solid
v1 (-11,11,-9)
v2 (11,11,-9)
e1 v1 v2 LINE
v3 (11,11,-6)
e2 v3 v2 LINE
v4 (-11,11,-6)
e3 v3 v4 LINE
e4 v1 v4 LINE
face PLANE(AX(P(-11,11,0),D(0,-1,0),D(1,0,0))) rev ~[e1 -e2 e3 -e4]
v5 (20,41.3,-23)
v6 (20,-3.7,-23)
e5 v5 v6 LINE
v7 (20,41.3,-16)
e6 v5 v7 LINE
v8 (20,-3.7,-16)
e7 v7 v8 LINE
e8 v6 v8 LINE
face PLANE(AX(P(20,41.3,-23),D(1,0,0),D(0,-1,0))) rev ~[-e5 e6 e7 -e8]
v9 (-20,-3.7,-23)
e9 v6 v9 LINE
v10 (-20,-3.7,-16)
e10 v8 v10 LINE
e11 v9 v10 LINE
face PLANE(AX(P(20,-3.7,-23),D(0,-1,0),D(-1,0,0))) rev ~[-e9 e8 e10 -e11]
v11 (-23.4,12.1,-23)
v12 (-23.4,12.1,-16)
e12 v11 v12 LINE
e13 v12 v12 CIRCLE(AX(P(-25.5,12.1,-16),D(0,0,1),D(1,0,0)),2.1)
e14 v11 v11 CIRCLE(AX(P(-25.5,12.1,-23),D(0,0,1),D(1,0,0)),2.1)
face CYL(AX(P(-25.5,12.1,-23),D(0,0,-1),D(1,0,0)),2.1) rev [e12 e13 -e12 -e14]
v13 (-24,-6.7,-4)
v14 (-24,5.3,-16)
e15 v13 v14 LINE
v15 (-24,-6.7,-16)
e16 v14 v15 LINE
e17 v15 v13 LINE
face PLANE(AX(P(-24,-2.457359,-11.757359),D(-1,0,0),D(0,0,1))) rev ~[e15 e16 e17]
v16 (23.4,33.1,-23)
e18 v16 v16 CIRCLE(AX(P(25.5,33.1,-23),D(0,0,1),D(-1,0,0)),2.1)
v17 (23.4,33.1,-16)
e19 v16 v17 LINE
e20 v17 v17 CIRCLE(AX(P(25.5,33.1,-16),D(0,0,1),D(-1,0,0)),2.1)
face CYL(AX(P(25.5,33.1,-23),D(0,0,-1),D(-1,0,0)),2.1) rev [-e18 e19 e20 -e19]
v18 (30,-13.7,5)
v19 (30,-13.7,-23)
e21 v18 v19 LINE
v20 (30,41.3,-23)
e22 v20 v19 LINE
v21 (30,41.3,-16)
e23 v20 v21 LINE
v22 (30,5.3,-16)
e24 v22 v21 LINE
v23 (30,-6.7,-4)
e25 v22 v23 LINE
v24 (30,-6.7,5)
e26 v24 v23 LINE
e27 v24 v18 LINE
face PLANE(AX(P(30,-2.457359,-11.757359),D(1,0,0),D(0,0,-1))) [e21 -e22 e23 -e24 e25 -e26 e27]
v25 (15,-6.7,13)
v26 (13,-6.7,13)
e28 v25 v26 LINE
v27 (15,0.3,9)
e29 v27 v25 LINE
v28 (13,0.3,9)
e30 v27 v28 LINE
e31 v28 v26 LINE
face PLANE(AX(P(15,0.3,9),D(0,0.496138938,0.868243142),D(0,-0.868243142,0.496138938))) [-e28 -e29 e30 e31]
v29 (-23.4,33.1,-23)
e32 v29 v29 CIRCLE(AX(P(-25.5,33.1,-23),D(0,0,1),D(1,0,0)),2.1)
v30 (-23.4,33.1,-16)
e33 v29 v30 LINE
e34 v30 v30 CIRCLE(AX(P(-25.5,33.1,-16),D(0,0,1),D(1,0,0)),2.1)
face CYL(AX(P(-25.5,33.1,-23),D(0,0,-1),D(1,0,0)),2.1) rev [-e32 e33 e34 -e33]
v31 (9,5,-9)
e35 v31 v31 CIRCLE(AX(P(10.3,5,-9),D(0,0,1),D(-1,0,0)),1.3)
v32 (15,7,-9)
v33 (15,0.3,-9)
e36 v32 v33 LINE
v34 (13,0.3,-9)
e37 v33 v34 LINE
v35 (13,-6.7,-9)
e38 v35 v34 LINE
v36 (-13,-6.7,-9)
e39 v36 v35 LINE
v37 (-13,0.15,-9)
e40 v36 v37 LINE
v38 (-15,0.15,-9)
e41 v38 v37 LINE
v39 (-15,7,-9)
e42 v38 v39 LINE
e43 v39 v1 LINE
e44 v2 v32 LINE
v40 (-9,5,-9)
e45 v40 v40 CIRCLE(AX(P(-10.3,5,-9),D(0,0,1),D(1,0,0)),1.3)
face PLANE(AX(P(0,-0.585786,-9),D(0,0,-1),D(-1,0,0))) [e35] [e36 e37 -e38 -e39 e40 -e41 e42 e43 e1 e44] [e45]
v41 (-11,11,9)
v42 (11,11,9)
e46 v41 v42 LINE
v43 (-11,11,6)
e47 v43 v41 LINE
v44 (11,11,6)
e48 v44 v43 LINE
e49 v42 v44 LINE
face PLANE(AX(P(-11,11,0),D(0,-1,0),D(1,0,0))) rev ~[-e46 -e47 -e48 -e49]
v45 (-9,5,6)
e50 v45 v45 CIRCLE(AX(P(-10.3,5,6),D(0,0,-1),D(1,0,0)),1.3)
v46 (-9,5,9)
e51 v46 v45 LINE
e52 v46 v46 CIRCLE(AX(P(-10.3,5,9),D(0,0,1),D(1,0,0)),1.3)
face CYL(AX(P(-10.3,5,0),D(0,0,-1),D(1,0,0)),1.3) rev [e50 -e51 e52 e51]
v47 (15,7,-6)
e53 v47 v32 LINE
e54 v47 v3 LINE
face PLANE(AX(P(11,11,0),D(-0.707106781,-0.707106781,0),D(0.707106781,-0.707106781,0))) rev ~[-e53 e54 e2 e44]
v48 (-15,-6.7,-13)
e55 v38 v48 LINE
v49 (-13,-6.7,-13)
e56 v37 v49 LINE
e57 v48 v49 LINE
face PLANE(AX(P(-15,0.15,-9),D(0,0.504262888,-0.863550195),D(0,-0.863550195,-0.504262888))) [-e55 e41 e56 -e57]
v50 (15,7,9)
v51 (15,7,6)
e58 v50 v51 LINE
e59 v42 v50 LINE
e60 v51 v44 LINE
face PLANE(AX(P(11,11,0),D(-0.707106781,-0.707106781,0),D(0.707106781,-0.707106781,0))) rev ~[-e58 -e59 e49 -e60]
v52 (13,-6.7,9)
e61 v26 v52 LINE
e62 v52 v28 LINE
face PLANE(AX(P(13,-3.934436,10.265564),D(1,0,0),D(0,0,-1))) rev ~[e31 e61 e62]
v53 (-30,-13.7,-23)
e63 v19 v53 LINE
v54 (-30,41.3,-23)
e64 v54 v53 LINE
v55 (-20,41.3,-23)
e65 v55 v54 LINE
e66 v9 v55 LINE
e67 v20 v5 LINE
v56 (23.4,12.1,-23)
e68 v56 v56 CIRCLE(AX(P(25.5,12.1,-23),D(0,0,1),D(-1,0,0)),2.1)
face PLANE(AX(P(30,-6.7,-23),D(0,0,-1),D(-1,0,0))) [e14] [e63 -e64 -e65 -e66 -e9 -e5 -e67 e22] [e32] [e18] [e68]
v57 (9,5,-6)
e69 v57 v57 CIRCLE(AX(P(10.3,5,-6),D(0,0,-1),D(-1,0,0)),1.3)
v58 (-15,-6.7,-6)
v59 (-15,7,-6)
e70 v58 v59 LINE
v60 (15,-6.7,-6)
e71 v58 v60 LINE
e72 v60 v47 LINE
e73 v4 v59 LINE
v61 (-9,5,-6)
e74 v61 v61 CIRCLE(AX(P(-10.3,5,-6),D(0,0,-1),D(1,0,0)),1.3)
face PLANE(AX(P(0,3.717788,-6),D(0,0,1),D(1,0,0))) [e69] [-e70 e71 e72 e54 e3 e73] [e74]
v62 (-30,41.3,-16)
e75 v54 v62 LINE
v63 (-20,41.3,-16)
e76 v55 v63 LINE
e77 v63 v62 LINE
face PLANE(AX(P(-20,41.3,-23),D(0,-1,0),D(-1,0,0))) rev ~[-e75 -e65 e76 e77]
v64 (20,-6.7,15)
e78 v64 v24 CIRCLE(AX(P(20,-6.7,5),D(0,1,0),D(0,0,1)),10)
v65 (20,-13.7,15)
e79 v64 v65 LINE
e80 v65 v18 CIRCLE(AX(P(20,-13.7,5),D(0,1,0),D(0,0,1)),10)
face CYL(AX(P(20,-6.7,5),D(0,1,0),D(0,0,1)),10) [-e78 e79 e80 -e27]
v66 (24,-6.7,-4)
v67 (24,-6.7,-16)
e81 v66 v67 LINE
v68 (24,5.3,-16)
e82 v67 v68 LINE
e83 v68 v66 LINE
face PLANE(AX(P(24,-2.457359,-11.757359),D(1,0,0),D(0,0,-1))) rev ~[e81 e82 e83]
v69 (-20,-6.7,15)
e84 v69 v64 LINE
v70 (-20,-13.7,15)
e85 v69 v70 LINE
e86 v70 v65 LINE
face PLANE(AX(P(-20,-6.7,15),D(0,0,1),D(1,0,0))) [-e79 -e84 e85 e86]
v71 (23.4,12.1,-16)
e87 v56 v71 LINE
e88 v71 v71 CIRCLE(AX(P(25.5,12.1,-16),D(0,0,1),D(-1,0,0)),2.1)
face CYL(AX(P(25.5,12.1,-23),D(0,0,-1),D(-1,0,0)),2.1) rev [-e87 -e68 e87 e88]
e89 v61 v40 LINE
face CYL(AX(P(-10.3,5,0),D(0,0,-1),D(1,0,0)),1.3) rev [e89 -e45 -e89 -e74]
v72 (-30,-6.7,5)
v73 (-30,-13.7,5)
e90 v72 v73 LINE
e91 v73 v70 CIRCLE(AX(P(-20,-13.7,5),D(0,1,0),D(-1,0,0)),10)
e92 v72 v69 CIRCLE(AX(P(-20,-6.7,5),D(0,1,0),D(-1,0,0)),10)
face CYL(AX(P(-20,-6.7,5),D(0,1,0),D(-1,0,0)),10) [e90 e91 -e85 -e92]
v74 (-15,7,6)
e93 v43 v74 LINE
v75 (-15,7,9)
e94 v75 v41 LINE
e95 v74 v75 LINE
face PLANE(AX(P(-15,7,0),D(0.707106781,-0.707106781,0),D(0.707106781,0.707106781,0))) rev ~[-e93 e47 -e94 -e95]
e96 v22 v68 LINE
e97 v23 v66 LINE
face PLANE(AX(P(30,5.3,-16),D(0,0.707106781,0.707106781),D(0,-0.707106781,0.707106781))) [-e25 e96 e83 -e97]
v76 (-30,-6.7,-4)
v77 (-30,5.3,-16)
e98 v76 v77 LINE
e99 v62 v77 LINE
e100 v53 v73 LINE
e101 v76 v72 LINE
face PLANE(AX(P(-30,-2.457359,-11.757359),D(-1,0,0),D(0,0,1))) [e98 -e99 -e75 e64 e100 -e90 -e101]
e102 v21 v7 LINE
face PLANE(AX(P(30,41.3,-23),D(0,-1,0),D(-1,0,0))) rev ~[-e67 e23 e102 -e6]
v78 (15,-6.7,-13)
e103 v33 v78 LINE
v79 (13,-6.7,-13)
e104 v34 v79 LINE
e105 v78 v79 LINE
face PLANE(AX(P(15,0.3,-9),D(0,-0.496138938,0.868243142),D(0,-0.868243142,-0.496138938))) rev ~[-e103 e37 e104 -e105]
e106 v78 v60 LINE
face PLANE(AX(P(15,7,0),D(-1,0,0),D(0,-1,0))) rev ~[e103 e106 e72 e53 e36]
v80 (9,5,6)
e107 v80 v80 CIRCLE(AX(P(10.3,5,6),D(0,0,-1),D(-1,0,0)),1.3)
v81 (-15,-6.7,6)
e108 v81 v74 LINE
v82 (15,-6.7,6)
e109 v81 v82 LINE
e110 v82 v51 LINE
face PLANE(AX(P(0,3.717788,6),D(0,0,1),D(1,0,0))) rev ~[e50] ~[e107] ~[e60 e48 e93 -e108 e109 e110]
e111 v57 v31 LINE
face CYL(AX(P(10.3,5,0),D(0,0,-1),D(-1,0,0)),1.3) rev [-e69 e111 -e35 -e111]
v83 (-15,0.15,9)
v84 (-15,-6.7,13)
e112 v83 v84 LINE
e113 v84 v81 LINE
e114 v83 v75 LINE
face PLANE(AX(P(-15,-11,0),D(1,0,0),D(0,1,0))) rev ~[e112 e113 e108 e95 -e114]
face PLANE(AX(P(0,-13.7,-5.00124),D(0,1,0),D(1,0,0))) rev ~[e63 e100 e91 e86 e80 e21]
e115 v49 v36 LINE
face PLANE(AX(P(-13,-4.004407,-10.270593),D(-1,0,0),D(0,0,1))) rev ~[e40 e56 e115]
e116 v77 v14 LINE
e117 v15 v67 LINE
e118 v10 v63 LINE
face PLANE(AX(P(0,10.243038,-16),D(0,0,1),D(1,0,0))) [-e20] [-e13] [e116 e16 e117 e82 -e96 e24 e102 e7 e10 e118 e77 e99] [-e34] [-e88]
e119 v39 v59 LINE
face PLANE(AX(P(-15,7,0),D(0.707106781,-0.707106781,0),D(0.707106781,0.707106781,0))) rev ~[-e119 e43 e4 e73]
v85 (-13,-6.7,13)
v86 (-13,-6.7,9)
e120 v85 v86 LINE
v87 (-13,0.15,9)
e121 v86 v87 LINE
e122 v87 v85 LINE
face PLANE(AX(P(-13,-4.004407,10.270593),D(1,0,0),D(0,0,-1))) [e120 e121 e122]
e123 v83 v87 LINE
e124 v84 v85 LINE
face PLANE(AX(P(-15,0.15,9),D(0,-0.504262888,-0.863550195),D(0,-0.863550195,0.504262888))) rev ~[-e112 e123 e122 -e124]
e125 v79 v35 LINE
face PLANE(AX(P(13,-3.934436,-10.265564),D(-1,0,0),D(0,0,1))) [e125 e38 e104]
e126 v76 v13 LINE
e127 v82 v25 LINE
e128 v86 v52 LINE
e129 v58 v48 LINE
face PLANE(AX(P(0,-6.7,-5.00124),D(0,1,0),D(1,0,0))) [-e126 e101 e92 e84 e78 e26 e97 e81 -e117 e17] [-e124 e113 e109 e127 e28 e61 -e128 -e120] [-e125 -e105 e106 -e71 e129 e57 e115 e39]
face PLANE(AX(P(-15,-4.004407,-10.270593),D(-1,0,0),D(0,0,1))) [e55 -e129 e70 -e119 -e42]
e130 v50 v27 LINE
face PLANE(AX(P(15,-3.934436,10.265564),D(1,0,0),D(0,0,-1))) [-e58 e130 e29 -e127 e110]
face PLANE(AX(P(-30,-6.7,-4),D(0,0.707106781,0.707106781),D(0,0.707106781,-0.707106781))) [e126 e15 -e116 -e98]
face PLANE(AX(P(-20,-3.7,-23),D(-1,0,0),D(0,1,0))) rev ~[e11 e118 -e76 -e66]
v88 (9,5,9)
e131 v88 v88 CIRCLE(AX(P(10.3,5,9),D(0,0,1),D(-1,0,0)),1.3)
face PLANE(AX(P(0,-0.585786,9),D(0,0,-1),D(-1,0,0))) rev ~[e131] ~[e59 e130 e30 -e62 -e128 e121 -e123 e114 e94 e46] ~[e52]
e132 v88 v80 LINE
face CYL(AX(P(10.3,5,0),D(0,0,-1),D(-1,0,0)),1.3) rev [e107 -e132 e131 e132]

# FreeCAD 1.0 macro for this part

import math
import FreeCAD as App
import Part
import Sketcher
from FreeCAD import Vector


def add_polygon(sketch, points):
    """Adds a closed chain of lines whose ends are joined by coincident constraints."""
    first, n = sketch.GeometryCount, len(points)
    for a, b in zip(points, points[1:] + points[:1]):
        sketch.addGeometry(Part.LineSegment(App.Vector(*a, 0), App.Vector(*b, 0)), False)
    for i in range(n):
        sketch.addConstraint(Sketcher.Constraint("Coincident", first + i, 2, first + (i + 1) % n, 1))

doc = App.newDocument("Part")
body = doc.addObject("PartDesign::Body", "Body")

# Sketch on XY plane
sketch1 = body.newObject("Sketcher::SketchObject", "Sketch")
sketch1.AttachmentSupport = (doc.getObject("XY_Plane"), [""])
sketch1.MapMode = "FlatFace"
add_polygon(sketch1, [(11, 11), (-11, 11), (-15, 7), (-15, -11), (15, -11), (15, 7)])  # lines 0-5
sketch1.addGeometry(Part.Circle(Vector(10.3, 5, 0), Vector(0, 0, 1), 1.3), False)  # 6
sketch1.addGeometry(Part.Circle(Vector(-10.3, 5, 0), Vector(0, 0, 1), 1.3), False)  # 7
sketch1.addConstraint([
    Sketcher.Constraint("Horizontal", 0),
    Sketcher.Constraint("Vertical", 2),
    Sketcher.Constraint("Horizontal", 3),
    Sketcher.Constraint("Vertical", 4),
    Sketcher.Constraint("Equal", 6, 7),
    Sketcher.Constraint("Symmetric", 6, 3, 7, 3, -2),
    Sketcher.Constraint("Symmetric", 1, 2, 4, 2, -2),
    Sketcher.Constraint("Perpendicular", 1, 5),
    Sketcher.Constraint("Equal", 1, 5),
    Sketcher.Constraint("Diameter", 6, 2.6),
    Sketcher.Constraint("DistanceX", 0, 2, 0, 1, 22.0),
    Sketcher.Constraint("DistanceX", 3, 1, 3, 2, 30.0),
    Sketcher.Constraint("DistanceY", 2, 2, 2, 1, 18.0),
    Sketcher.Constraint("DistanceY", -1, 1, 6, 3, 5.0),
    Sketcher.Constraint("DistanceY", -1, 1, 0, 2, 11.0),
    Sketcher.Constraint("DistanceX", -1, 1, 6, 3, 10.3),
])
pad1 = body.newObject("PartDesign::Pad", "Pad")
pad1.Profile = sketch1
pad1.Length = 18
pad1.Midplane = True

# Sketch on XY plane
sketch2 = body.newObject("Sketcher::SketchObject", "Sketch001")
sketch2.AttachmentSupport = (doc.getObject("XY_Plane"), [""])
sketch2.MapMode = "FlatFace"
add_polygon(sketch2, [(-15, 14.135576), (-15, -6.7), (15, -6.7), (15, 14.135576)])  # lines 0-3
sketch2.addConstraint([
    Sketcher.Constraint("Vertical", 0),
    Sketcher.Constraint("Horizontal", 1),
    Sketcher.Constraint("Vertical", 2),
    Sketcher.Constraint("Horizontal", 3),
    Sketcher.Constraint("DistanceX", 1, 1, 1, 2, 30.0),
    Sketcher.Constraint("DistanceX", 0, 2, -1, 1, 15.0),
    Sketcher.Constraint("DistanceY", 0, 2, -1, 1, 6.7),
    Sketcher.Constraint("DistanceY", 0, 2, 0, 1, 20.835576),
])
pocket1 = body.newObject("PartDesign::Pocket", "Pocket")
pocket1.Profile = sketch2
pocket1.Length = 12
pocket1.Midplane = True

# Sketch on XZ plane
sketch3 = body.newObject("Sketcher::SketchObject", "Sketch002")
sketch3.AttachmentSupport = (doc.getObject("XZ_Plane"), [""])
sketch3.MapMode = "FlatFace"
sketch3.AttachmentOffset = App.Placement(Vector(0, 0, 6.7), App.Rotation())
sketch3.addGeometry([
    Part.LineSegment(Vector(-20, 15, 0), Vector(20, 15, 0)),  # 0
    Part.ArcOfCircle(Part.Circle(Vector(20, 5, 0), Vector(0, 0, 1), 10), math.radians(0), math.radians(90)),  # 1
    Part.LineSegment(Vector(30, 5, 0), Vector(30, -23, 0)),  # 2
    Part.LineSegment(Vector(30, -23, 0), Vector(-30, -23, 0)),  # 3
    Part.LineSegment(Vector(-30, -23, 0), Vector(-30, 5, 0)),  # 4
    Part.ArcOfCircle(Part.Circle(Vector(-20, 5, 0), Vector(0, 0, 1), 10), math.radians(90), math.radians(180)),  # 5
], False)
sketch3.addConstraint([
    Sketcher.Constraint("Tangent", 0, 2, 1, 2),
    Sketcher.Constraint("Tangent", 1, 1, 2, 1),
    Sketcher.Constraint("Coincident", 2, 2, 3, 1),
    Sketcher.Constraint("Coincident", 3, 2, 4, 1),
    Sketcher.Constraint("Tangent", 4, 2, 5, 2),
    Sketcher.Constraint("Tangent", 5, 1, 0, 1),
    Sketcher.Constraint("Horizontal", 0),
    Sketcher.Constraint("Vertical", 2),
    Sketcher.Constraint("Horizontal", 3),
    Sketcher.Constraint("Vertical", 4),
    Sketcher.Constraint("Equal", 1, 5),
    Sketcher.Constraint("Radius", 1, 10.0),
    Sketcher.Constraint("DistanceX", 0, 1, 0, 2, 40.0),
    Sketcher.Constraint("DistanceY", 2, 2, 2, 1, 28.0),
    Sketcher.Constraint("DistanceX", -1, 1, 1, 3, 20.0),
    Sketcher.Constraint("DistanceY", -1, 1, 1, 3, 5.0),
])
pad2 = body.newObject("PartDesign::Pad", "Pad001")
pad2.Profile = sketch3
pad2.Length = 7

# Sketch on YZ plane
sketch4 = body.newObject("Sketcher::SketchObject", "Sketch003")
sketch4.AttachmentSupport = (doc.getObject("YZ_Plane"), [""])
sketch4.MapMode = "FlatFace"
sketch4.AttachmentOffset = App.Placement(Vector(0, 0, 15), App.Rotation())
add_polygon(sketch4, [(0.3, 9), (-6.7, 13), (-6.7, 9)])  # lines 0-2
add_polygon(sketch4, [(0.3, -9), (-6.7, -9), (-6.7, -13)])  # lines 3-5
sketch4.addConstraint([
    Sketcher.Constraint("Vertical", 1),
    Sketcher.Constraint("Horizontal", 2),
    Sketcher.Constraint("Horizontal", 3),
    Sketcher.Constraint("Vertical", 4),
    Sketcher.Constraint("Symmetric", 1, 2, 3, 2, -1),
    Sketcher.Constraint("Vertical", 2, 2, 5, 2),
    Sketcher.Constraint("Equal", 1, 4),
    Sketcher.Constraint("DistanceX", 2, 1, 2, 2, 7.0),
    Sketcher.Constraint("DistanceY", 1, 2, 1, 1, 4.0),
    Sketcher.Constraint("DistanceY", -1, 1, 0, 2, 13.0),
    Sketcher.Constraint("DistanceX", 0, 2, -1, 1, 6.7),
])
pad3 = body.newObject("PartDesign::Pad", "Pad002")
pad3.Profile = sketch4
pad3.Length = 2
pad3.Reversed = True

# Sketch on YZ plane
sketch5 = body.newObject("Sketcher::SketchObject", "Sketch004")
sketch5.AttachmentSupport = (doc.getObject("YZ_Plane"), [""])
sketch5.MapMode = "FlatFace"
sketch5.AttachmentOffset = App.Placement(Vector(0, 0, -15), App.Rotation())
add_polygon(sketch5, [(0.15, -9), (-6.7, -13), (-6.7, -9)])  # lines 0-2
add_polygon(sketch5, [(0.15, 9), (-6.7, 9), (-6.7, 13)])  # lines 3-5
sketch5.addConstraint([
    Sketcher.Constraint("Vertical", 1),
    Sketcher.Constraint("Horizontal", 2),
    Sketcher.Constraint("Horizontal", 3),
    Sketcher.Constraint("Vertical", 4),
    Sketcher.Constraint("Symmetric", 1, 2, 3, 2, -1),
    Sketcher.Constraint("Vertical", 2, 2, 5, 2),
    Sketcher.Constraint("Equal", 1, 4),
    Sketcher.Constraint("DistanceY", 1, 1, 1, 2, 4.0),
    Sketcher.Constraint("DistanceY", 0, 2, -1, 1, 13.0),
    Sketcher.Constraint("DistanceX", 2, 1, 2, 2, 6.85),
    Sketcher.Constraint("DistanceX", 0, 2, -1, 1, 6.7),
])
pad4 = body.newObject("PartDesign::Pad", "Pad003")
pad4.Profile = sketch5
pad4.Length = 2

# Sketch on XY plane
sketch6 = body.newObject("Sketcher::SketchObject", "Sketch005")
sketch6.AttachmentSupport = (doc.getObject("XY_Plane"), [""])
sketch6.MapMode = "FlatFace"
sketch6.AttachmentOffset = App.Placement(Vector(0, 0, -23), App.Rotation())
add_polygon(sketch6, [(-30, -11.7), (30, -11.7), (30, 41.3), (20, 41.3), (20, -3.7), (-20, -3.7), (-20, 41.3), (-30, 41.3)])  # lines 0-7
sketch6.addGeometry(Part.Circle(Vector(-25.5, 12.1, 0), Vector(0, 0, 1), 2.1), False)  # 8
sketch6.addGeometry(Part.Circle(Vector(25.5, 12.1, 0), Vector(0, 0, 1), 2.1), False)  # 9
sketch6.addGeometry(Part.Circle(Vector(-25.5, 33.1, 0), Vector(0, 0, 1), 2.1), False)  # 10
sketch6.addGeometry(Part.Circle(Vector(25.5, 33.1, 0), Vector(0, 0, 1), 2.1), False)  # 11
sketch6.addConstraint([
    Sketcher.Constraint("Horizontal", 0),
    Sketcher.Constraint("Vertical", 1),
    Sketcher.Constraint("Horizontal", 2),
    Sketcher.Constraint("Vertical", 3),
    Sketcher.Constraint("Horizontal", 4),
    Sketcher.Constraint("Vertical", 5),
    Sketcher.Constraint("Horizontal", 6),
    Sketcher.Constraint("Vertical", 7),
    Sketcher.Constraint("Equal", 8, 9),
    Sketcher.Constraint("Equal", 9, 10),
    Sketcher.Constraint("Equal", 10, 11),
    Sketcher.Constraint("Symmetric", 8, 3, 9, 3, -2),
    Sketcher.Constraint("Symmetric", 10, 3, 11, 3, -2),
    Sketcher.Constraint("Symmetric", 2, 2, 5, 2, -2),
    Sketcher.Constraint("Vertical", 8, 3, 10, 3),
    Sketcher.Constraint("Equal", 2, 6),
    Sketcher.Constraint("Diameter", 8, 4.2),
    Sketcher.Constraint("DistanceX", 0, 1, 0, 2, 60.0),
    Sketcher.Constraint("DistanceX", 2, 2, 2, 1, 10.0),
    Sketcher.Constraint("DistanceY", 1, 1, 1, 2, 53.0),
    Sketcher.Constraint("DistanceY", 3, 2, 3, 1, 45.0),
    Sketcher.Constraint("DistanceX", 8, 3, 9, 3, 51.0),
    Sketcher.Constraint("DistanceY", 8, 3, 10, 3, 21.0),
    Sketcher.Constraint("DistanceY", -1, 1, 8, 3, 12.1),
    Sketcher.Constraint("DistanceY", 0, 2, -1, 1, 11.7),
])
pad5 = body.newObject("PartDesign::Pad", "Pad004")
pad5.Profile = sketch6
pad5.Length = 7

# Sketch on YZ plane
sketch7 = body.newObject("Sketcher::SketchObject", "Sketch006")
sketch7.AttachmentSupport = (doc.getObject("YZ_Plane"), [""])
sketch7.MapMode = "FlatFace"
sketch7.AttachmentOffset = App.Placement(Vector(0, 0, -30), App.Rotation())
add_polygon(sketch7, [(-6.7, -4), (5.3, -16), (-6.7, -16)])  # lines 0-2
sketch7.addConstraint([
    Sketcher.Constraint("Horizontal", 1),
    Sketcher.Constraint("Vertical", 2),
    Sketcher.Constraint("Equal", 1, 2),
    Sketcher.Constraint("DistanceX", 1, 2, 1, 1, 12.0),
    Sketcher.Constraint("DistanceY", 0, 2, -1, 1, 16.0),
    Sketcher.Constraint("DistanceX", -1, 1, 0, 2, 5.3),
])
pad6 = body.newObject("PartDesign::Pad", "Pad005")
pad6.Profile = sketch7
pad6.Length = 6

# Sketch on YZ plane
sketch8 = body.newObject("Sketcher::SketchObject", "Sketch007")
sketch8.AttachmentSupport = (doc.getObject("YZ_Plane"), [""])
sketch8.MapMode = "FlatFace"
sketch8.AttachmentOffset = App.Placement(Vector(0, 0, 30), App.Rotation())
add_polygon(sketch8, [(-6.7, -16), (5.3, -16), (-6.7, -4)])  # lines 0-2
sketch8.addConstraint([
    Sketcher.Constraint("Horizontal", 0),
    Sketcher.Constraint("Vertical", 2),
    Sketcher.Constraint("Equal", 0, 2),
    Sketcher.Constraint("DistanceX", 0, 1, 0, 2, 12.0),
    Sketcher.Constraint("DistanceY", 0, 2, -1, 1, 16.0),
    Sketcher.Constraint("DistanceX", -1, 1, 0, 2, 5.3),
])
pad7 = body.newObject("PartDesign::Pad", "Pad006")
pad7.Profile = sketch8
pad7.Length = 6
pad7.Reversed = True

doc.recompute()
